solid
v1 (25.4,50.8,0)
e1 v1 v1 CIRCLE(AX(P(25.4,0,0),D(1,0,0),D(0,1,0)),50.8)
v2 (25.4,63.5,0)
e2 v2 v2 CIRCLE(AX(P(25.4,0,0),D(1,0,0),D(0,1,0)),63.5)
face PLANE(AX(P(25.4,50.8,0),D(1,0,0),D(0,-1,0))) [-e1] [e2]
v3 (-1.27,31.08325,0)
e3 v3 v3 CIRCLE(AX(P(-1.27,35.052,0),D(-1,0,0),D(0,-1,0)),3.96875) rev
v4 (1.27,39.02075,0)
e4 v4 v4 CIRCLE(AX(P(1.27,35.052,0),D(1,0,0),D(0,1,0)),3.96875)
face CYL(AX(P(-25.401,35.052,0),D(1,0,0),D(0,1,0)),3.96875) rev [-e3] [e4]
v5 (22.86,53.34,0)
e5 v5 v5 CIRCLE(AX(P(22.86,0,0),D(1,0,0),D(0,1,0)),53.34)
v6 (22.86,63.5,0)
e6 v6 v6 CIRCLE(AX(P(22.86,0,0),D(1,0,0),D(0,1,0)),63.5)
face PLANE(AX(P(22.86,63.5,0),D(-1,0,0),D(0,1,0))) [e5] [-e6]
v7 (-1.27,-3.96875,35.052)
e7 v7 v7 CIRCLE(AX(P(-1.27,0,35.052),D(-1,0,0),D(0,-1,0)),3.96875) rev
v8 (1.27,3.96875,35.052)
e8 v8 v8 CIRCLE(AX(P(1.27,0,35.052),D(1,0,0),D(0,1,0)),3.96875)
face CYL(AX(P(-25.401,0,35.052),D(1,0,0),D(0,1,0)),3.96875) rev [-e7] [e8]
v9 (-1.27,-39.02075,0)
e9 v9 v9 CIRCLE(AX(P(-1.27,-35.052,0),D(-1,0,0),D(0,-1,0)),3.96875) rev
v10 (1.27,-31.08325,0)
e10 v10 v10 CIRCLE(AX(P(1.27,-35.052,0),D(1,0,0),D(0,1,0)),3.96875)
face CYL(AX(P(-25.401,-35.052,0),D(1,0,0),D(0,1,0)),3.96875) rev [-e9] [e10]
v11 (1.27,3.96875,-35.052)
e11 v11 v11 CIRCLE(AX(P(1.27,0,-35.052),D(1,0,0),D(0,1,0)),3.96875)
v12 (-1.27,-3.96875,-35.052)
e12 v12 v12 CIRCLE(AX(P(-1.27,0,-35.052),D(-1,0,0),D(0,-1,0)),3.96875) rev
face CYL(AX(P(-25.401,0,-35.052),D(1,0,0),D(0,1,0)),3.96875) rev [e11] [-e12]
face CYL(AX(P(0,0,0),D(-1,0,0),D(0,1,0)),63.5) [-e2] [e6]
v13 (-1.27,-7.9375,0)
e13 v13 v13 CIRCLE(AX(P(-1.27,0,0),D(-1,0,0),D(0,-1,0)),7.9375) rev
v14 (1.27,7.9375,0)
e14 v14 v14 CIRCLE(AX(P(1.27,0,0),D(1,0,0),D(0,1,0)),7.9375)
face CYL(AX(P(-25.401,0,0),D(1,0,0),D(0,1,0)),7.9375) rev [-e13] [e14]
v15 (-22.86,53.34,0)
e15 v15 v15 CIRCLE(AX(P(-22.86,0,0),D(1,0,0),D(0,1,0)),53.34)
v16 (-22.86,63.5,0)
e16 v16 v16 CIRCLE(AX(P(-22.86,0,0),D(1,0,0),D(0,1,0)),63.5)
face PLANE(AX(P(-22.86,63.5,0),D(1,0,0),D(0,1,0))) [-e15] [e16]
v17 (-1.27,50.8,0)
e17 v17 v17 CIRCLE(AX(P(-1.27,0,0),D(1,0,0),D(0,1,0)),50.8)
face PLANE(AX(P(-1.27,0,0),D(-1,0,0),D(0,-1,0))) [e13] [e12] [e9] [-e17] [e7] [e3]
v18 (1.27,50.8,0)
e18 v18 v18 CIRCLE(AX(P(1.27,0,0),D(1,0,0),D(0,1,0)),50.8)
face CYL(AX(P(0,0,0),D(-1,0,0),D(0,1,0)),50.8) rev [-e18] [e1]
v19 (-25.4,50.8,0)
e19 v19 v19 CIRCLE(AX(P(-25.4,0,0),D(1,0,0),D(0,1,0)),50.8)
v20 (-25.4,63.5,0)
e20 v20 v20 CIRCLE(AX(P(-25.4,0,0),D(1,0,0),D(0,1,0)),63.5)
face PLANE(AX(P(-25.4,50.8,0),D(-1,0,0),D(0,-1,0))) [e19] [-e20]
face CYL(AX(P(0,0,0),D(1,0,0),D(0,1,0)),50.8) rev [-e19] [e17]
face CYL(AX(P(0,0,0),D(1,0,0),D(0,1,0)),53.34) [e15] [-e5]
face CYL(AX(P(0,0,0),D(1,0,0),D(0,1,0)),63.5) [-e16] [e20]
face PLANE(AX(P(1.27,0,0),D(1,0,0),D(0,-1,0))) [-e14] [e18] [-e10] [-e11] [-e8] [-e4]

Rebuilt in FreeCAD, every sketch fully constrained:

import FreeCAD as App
import Part
import Sketcher

V = App.Vector
Q = App.Units.Quantity

doc = App.newDocument("Part")
body = doc.addObject("PartDesign::Body", "Body")

# Sketch on XY plane
sketch1 = doc.addObject("Sketcher::SketchObject", "Sketch")
body.addObject(sketch1)
sketch1.AttachmentSupport = (doc.XY_Plane, [""])
sketch1.MapMode = "FlatFace"
sketch1.addGeometry([
    Part.LineSegment(V(-1.3, 0, 0), V(0, 0, 0)),  # 0
    Part.LineSegment(V(0, 0, 0), V(0, 53.3, 0)),  # 1
    Part.LineSegment(V(0, 53.3, 0), V(-22.9, 53.3, 0)),  # 2
    Part.LineSegment(V(-22.9, 53.3, 0), V(-22.9, 63.5, 0)),  # 3
    Part.LineSegment(V(-22.9, 63.5, 0), V(-25.4, 63.5, 0)),  # 4
    Part.LineSegment(V(-25.4, 63.5, 0), V(-25.4, 50.8, 0)),  # 5
    Part.LineSegment(V(-25.4, 50.8, 0), V(-1.3, 50.8, 0)),  # 6
    Part.LineSegment(V(-1.3, 50.8, 0), V(-1.3, 0, 0)),  # 7
], False)
sketch1.addConstraint([
    Sketcher.Constraint("Coincident", 0, 2, 1, 1),
    Sketcher.Constraint("Coincident", 1, 2, 2, 1),
    Sketcher.Constraint("Coincident", 2, 2, 3, 1),
    Sketcher.Constraint("Coincident", 3, 2, 4, 1),
    Sketcher.Constraint("Coincident", 4, 2, 5, 1),
    Sketcher.Constraint("Coincident", 5, 2, 6, 1),
    Sketcher.Constraint("Coincident", 6, 2, 7, 1),
    Sketcher.Constraint("Coincident", 7, 2, 0, 1),
    Sketcher.Constraint("Horizontal", 0),
    Sketcher.Constraint("Vertical", 1),
    Sketcher.Constraint("Horizontal", 2),
    Sketcher.Constraint("Vertical", 3),
    Sketcher.Constraint("Horizontal", 4),
    Sketcher.Constraint("Vertical", 5),
    Sketcher.Constraint("Horizontal", 6),
    Sketcher.Constraint("Vertical", 7),
    Sketcher.Constraint("Coincident", 0, 2, -1, 1),
    Sketcher.Constraint("DistanceY", 7, 2, 7, 1, Q("2 in")),
    Sketcher.Constraint("DistanceX", 2, 2, 2, 1, Q("0.9 in")),
    Sketcher.Constraint("DistanceX", 4, 2, 4, 1, Q("0.1 in")),
    Sketcher.Constraint("DistanceY", 1, 1, 1, 2, Q("2.1 in")),
    Sketcher.Constraint("DistanceY", 3, 1, 3, 2, Q("0.4 in")),
    Sketcher.Constraint("DistanceX", 0, 1, 0, 2, Q("0.05 in")),
])
revolution = doc.addObject("PartDesign::Revolution", "Revolution")
body.addObject(revolution)
revolution.Profile = sketch1
revolution.ReferenceAxis = (sketch1, ["H_Axis"])
revolution.Angle = 360
doc.recompute()

mirrored = doc.addObject("PartDesign::Mirrored", "Mirrored")
body.addObject(mirrored)
mirrored.Originals = [revolution]
mirrored.MirrorPlane = (doc.YZ_Plane, [""])
body.Tip = mirrored

# Sketch on YZ plane
sketch2 = doc.addObject("Sketcher::SketchObject", "Sketch001")
body.addObject(sketch2)
sketch2.AttachmentSupport = (doc.YZ_Plane, [""])
sketch2.MapMode = "FlatFace"
sketch2.AttachmentOffset = App.Placement(V(0, 0, 0.05 * 25.4), App.Rotation())
sketch2.addGeometry(Part.Circle(V(0, -35.1, 0), V(0, 0, 1), 4), False)
sketch2.addConstraint([
    Sketcher.Constraint("PointOnObject", 0, 3, -2),
    Sketcher.Constraint("Diameter", 0, Q("0.3125 in")),
    Sketcher.Constraint("DistanceY", 0, 3, -1, 1, Q("1.38 in")),
])
pocket1 = doc.addObject("PartDesign::Pocket", "Pocket")
body.addObject(pocket1)
pocket1.Profile = sketch2
pocket1.Type = "UpToFirst"

# Sketch on YZ plane
sketch3 = doc.addObject("Sketcher::SketchObject", "Sketch002")
body.addObject(sketch3)
sketch3.AttachmentSupport = (doc.YZ_Plane, [""])
sketch3.MapMode = "FlatFace"
sketch3.AttachmentOffset = App.Placement(V(0, 0, 0.05 * 25.4), App.Rotation())
sketch3.addGeometry(Part.Circle(V(35.1, 0, 0), V(0, 0, 1), 4), False)
sketch3.addConstraint([
    Sketcher.Constraint("PointOnObject", 0, 3, -1),
    Sketcher.Constraint("Diameter", 0, Q("0.3125 in")),
    Sketcher.Constraint("DistanceX", -1, 1, 0, 3, Q("1.38 in")),
])
pocket2 = doc.addObject("PartDesign::Pocket", "Pocket001")
body.addObject(pocket2)
pocket2.Profile = sketch3
pocket2.Type = "UpToFirst"

# Sketch on YZ plane
sketch4 = doc.addObject("Sketcher::SketchObject", "Sketch003")
body.addObject(sketch4)
sketch4.AttachmentSupport = (doc.YZ_Plane, [""])
sketch4.MapMode = "FlatFace"
sketch4.AttachmentOffset = App.Placement(V(0, 0, 0.05 * 25.4), App.Rotation())
sketch4.addGeometry(Part.Circle(V(-35.1, 0, 0), V(0, 0, 1), 4), False)
sketch4.addConstraint([
    Sketcher.Constraint("PointOnObject", 0, 3, -1),
    Sketcher.Constraint("Diameter", 0, Q("0.3125 in")),
    Sketcher.Constraint("DistanceX", 0, 3, -1, 1, Q("1.38 in")),
])
pocket3 = doc.addObject("PartDesign::Pocket", "Pocket002")
body.addObject(pocket3)
pocket3.Profile = sketch4
pocket3.Type = "UpToFirst"

# Sketch on YZ plane
sketch5 = doc.addObject("Sketcher::SketchObject", "Sketch004")
body.addObject(sketch5)
sketch5.AttachmentSupport = (doc.YZ_Plane, [""])
sketch5.MapMode = "FlatFace"
sketch5.AttachmentOffset = App.Placement(V(0, 0, 0.05 * 25.4), App.Rotation())
sketch5.addGeometry(Part.Circle(V(0, 35.1, 0), V(0, 0, 1), 4), False)
sketch5.addConstraint([
    Sketcher.Constraint("PointOnObject", 0, 3, -2),
    Sketcher.Constraint("Diameter", 0, Q("0.3125 in")),
    Sketcher.Constraint("DistanceY", -1, 1, 0, 3, Q("1.38 in")),
])
pocket4 = doc.addObject("PartDesign::Pocket", "Pocket003")
body.addObject(pocket4)
pocket4.Profile = sketch5
pocket4.Type = "UpToFirst"

# Sketch on YZ plane
sketch6 = doc.addObject("Sketcher::SketchObject", "Sketch005")
body.addObject(sketch6)
sketch6.AttachmentSupport = (doc.YZ_Plane, [""])
sketch6.MapMode = "FlatFace"
sketch6.AttachmentOffset = App.Placement(V(0, 0, 0.05 * 25.4), App.Rotation())
sketch6.addGeometry(Part.Circle(V(0, 0, 0), V(0, 0, 1), 8), False)
sketch6.addConstraint([
    Sketcher.Constraint("Coincident", 0, 3, -1, 1),
    Sketcher.Constraint("Diameter", 0, Q("0.625 in")),
])
pocket5 = doc.addObject("PartDesign::Pocket", "Pocket004")
body.addObject(pocket5)
pocket5.Profile = sketch6
pocket5.Type = "UpToFirst"

doc.recompute()
